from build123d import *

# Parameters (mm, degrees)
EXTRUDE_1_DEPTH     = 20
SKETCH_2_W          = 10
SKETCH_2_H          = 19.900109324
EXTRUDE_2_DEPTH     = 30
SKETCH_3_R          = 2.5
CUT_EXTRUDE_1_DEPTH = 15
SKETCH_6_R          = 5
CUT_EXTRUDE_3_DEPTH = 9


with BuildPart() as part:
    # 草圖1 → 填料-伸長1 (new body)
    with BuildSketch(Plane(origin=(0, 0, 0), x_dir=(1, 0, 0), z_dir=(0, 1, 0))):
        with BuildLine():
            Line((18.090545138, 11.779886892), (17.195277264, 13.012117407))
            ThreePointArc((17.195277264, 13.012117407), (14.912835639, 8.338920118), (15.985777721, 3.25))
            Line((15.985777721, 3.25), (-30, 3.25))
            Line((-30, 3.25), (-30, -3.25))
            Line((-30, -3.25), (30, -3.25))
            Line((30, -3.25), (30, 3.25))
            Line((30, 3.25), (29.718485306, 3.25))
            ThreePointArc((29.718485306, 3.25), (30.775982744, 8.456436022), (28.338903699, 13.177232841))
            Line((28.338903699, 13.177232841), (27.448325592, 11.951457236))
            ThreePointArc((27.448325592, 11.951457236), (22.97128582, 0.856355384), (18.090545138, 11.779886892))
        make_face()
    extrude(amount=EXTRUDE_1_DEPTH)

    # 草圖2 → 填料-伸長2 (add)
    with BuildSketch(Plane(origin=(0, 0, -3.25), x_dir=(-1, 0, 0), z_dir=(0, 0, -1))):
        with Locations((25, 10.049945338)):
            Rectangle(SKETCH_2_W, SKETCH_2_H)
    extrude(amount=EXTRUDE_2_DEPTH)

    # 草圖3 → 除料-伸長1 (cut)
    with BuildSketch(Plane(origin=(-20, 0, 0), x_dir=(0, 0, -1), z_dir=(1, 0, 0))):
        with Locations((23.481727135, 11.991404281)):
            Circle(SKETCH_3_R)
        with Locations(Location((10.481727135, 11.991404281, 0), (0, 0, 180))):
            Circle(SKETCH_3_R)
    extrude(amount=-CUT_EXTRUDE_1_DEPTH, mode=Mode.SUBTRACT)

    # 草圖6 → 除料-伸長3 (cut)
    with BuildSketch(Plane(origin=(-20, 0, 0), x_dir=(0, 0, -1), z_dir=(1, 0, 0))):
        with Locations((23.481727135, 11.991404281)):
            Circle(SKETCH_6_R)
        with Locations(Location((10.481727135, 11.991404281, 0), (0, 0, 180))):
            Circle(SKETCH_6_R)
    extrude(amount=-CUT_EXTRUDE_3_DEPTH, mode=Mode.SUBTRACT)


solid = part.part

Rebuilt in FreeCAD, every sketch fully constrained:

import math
import FreeCAD as App
import Part
import Sketcher
from FreeCAD import Vector
Q = App.Units.Quantity

doc = App.newDocument("Part")
body = doc.addObject("PartDesign::Body", "Body")

# Sketch on XZ plane
sketch1 = body.newObject("Sketcher::SketchObject", "Sketch")
sketch1.AttachmentSupport = (doc.getObject("XZ_Plane"), [""])
sketch1.MapMode = "FlatFace"
sketch1.addGeometry([
    Part.LineSegment(Vector(18.09, -11.78, 0), Vector(17.2, -13.01, 0)),  # 0
    Part.ArcOfCircle(Part.Circle(Vector(22.85, -7.36, 0), Vector(0, 0, 1), 8), math.radians(149), math.radians(225)),  # 1
    Part.LineSegment(Vector(15.99, -3.25, 0), Vector(-30, -3.25, 0)),  # 2
    Part.LineSegment(Vector(-30, -3.25, 0), Vector(-30, 3.25, 0)),  # 3
    Part.LineSegment(Vector(-30, 3.25, 0), Vector(30, 3.25, 0)),  # 4
    Part.LineSegment(Vector(30, 3.25, 0), Vector(30, -3.25, 0)),  # 5
    Part.LineSegment(Vector(30, -3.25, 0), Vector(29.72, -3.25, 0)),  # 6
    Part.ArcOfCircle(Part.Circle(Vector(22.85, -7.36, 0), Vector(0, 0, 1), 8), math.radians(-47), math.radians(31)),  # 7
    Part.LineSegment(Vector(28.34, -13.18, 0), Vector(27.45, -11.95, 0)),  # 8
    Part.ArcOfCircle(Part.Circle(Vector(22.85, -7.36, 0), Vector(0, 0, 1), 6.5), math.radians(-45), math.radians(223)),  # 9
], False)
sketch1.addConstraint([
    Sketcher.Constraint("Coincident", 0, 2, 1, 2),
    Sketcher.Constraint("Coincident", 1, 1, 2, 1),
    Sketcher.Constraint("Coincident", 2, 2, 3, 1),
    Sketcher.Constraint("Coincident", 3, 2, 4, 1),
    Sketcher.Constraint("Coincident", 4, 2, 5, 1),
    Sketcher.Constraint("Coincident", 5, 2, 6, 1),
    Sketcher.Constraint("Coincident", 6, 2, 7, 2),
    Sketcher.Constraint("Coincident", 7, 1, 8, 1),
    Sketcher.Constraint("Coincident", 8, 2, 9, 1),
    Sketcher.Constraint("Coincident", 9, 2, 0, 1),
    Sketcher.Constraint("Horizontal", 2),
    Sketcher.Constraint("Vertical", 3),
    Sketcher.Constraint("Horizontal", 4),
    Sketcher.Constraint("Vertical", 5),
    Sketcher.Constraint("Horizontal", 6),
    Sketcher.Constraint("Coincident", 7, 3, 1, 3),
    Sketcher.Constraint("Coincident", 9, 3, 1, 3),
    Sketcher.Constraint("Equal", 1, 7),
    Sketcher.Constraint("Symmetric", 2, 2, 4, 2, -1, 1),
    Sketcher.Constraint("Horizontal", 2, 2, 5, 2),
    Sketcher.Constraint("Radius", 1, 8.0),
    Sketcher.Constraint("Radius", 9, 6.5),
    Sketcher.Constraint("DistanceX", 4, 1, 4, 2, 60.0),
    Sketcher.Constraint("Angle", 0, Q("-126 deg")),
    Sketcher.Constraint("Angle", 8, Q("126 deg")),
    Sketcher.Constraint("DistanceY", 3, 1, 3, 2, 6.5),
    Sketcher.Constraint("DistanceX", 1, 1, 0, 2, 1.2095),
    Sketcher.Constraint("Distance", 0, 1.523121),
    Sketcher.Constraint("Distance", 8, 1.515142),
    Sketcher.Constraint("DistanceX", 2, 2, 2, 1, 45.985778),
])
pad1 = body.newObject("PartDesign::Pad", "Pad")
pad1.Profile = sketch1
pad1.Length = 20
pad1.Reversed = True

# Sketch on XY plane
sketch2 = body.newObject("Sketcher::SketchObject", "Sketch001")
sketch2.AttachmentSupport = (doc.getObject("XY_Plane"), [""])
sketch2.MapMode = "FlatFace"
sketch2.AttachmentOffset = App.Placement(Vector(0, 0, -3.25), App.Rotation())
sketch2.addGeometry([
    Part.LineSegment(Vector(-20, 20, 0), Vector(-20, 0, 0)),
    Part.LineSegment(Vector(-20, 0, 0), Vector(-30, 0, 0)),
    Part.LineSegment(Vector(-30, 0, 0), Vector(-30, 20, 0)),
    Part.LineSegment(Vector(-30, 20, 0), Vector(-20, 20, 0)),
], False)
sketch2.addConstraint([
    Sketcher.Constraint("Coincident", 0, 2, 1, 1),
    Sketcher.Constraint("Coincident", 1, 2, 2, 1),
    Sketcher.Constraint("Coincident", 2, 2, 3, 1),
    Sketcher.Constraint("Coincident", 3, 2, 0, 1),
    Sketcher.Constraint("Vertical", 0),
    Sketcher.Constraint("Horizontal", 1),
    Sketcher.Constraint("Vertical", 2),
    Sketcher.Constraint("Horizontal", 3),
    Sketcher.Constraint("DistanceX", 1, 2, 1, 1, 10.0),
    Sketcher.Constraint("DistanceX", 0, 2, -1, 1, 20.0),
    Sketcher.Constraint("DistanceY", -1, 1, 2, 2, 20.0),
    Sketcher.Constraint("DistanceY", 0, 2, 0, 1, 19.900109),
])
pad2 = body.newObject("PartDesign::Pad", "Pad001")
pad2.Profile = sketch2
pad2.Length = 30
pad2.Reversed = True

# Sketch on YZ plane
sketch3 = body.newObject("Sketcher::SketchObject", "Sketch002")
sketch3.AttachmentSupport = (doc.getObject("YZ_Plane"), [""])
sketch3.MapMode = "FlatFace"
sketch3.AttachmentOffset = App.Placement(Vector(0, 0, -20), App.Rotation())
sketch3.addGeometry([
    Part.Circle(Vector(12, -23.5, 0), Vector(0, 0, 1), 2.5),
    Part.Circle(Vector(12, -10.5, 0), Vector(0, 0, 1), 2.5),
], False)
sketch3.addConstraint([
    Sketcher.Constraint("Equal", 0, 1),
    Sketcher.Constraint("Vertical", 0, 3, 1, 3),
    Sketcher.Constraint("Diameter", 0, 5.0),
    Sketcher.Constraint("DistanceY", 0, 3, 1, 3, 13.0),
    Sketcher.Constraint("DistanceX", -1, 1, 0, 3, 11.991404),
    Sketcher.Constraint("DistanceY", 0, 3, -1, 1, 23.481727),
])
pocket1 = body.newObject("PartDesign::Pocket", "Pocket")
pocket1.Profile = sketch3
pocket1.Length = 15

# Sketch on YZ plane
sketch4 = body.newObject("Sketcher::SketchObject", "Sketch003")
sketch4.AttachmentSupport = (doc.getObject("YZ_Plane"), [""])
sketch4.MapMode = "FlatFace"
sketch4.AttachmentOffset = App.Placement(Vector(0, 0, -20), App.Rotation())
sketch4.addGeometry([
    Part.Circle(Vector(12, -23, 0), Vector(0, 0, 1), 5),
    Part.Circle(Vector(12, -10, 0), Vector(0, 0, 1), 5),
], False)
sketch4.addConstraint([
    Sketcher.Constraint("Equal", 0, 1),
    Sketcher.Constraint("Vertical", 0, 3, 1, 3),
    Sketcher.Constraint("Diameter", 0, 10.0),
    Sketcher.Constraint("DistanceY", 0, 3, 1, 3, 13.0),
    Sketcher.Constraint("DistanceX", -1, 1, 0, 3, 11.991404),
    Sketcher.Constraint("DistanceY", 0, 3, -1, 1, 23.481727),
])
pocket2 = body.newObject("PartDesign::Pocket", "Pocket001")
pocket2.Profile = sketch4
pocket2.Length = 9

doc.recompute()
